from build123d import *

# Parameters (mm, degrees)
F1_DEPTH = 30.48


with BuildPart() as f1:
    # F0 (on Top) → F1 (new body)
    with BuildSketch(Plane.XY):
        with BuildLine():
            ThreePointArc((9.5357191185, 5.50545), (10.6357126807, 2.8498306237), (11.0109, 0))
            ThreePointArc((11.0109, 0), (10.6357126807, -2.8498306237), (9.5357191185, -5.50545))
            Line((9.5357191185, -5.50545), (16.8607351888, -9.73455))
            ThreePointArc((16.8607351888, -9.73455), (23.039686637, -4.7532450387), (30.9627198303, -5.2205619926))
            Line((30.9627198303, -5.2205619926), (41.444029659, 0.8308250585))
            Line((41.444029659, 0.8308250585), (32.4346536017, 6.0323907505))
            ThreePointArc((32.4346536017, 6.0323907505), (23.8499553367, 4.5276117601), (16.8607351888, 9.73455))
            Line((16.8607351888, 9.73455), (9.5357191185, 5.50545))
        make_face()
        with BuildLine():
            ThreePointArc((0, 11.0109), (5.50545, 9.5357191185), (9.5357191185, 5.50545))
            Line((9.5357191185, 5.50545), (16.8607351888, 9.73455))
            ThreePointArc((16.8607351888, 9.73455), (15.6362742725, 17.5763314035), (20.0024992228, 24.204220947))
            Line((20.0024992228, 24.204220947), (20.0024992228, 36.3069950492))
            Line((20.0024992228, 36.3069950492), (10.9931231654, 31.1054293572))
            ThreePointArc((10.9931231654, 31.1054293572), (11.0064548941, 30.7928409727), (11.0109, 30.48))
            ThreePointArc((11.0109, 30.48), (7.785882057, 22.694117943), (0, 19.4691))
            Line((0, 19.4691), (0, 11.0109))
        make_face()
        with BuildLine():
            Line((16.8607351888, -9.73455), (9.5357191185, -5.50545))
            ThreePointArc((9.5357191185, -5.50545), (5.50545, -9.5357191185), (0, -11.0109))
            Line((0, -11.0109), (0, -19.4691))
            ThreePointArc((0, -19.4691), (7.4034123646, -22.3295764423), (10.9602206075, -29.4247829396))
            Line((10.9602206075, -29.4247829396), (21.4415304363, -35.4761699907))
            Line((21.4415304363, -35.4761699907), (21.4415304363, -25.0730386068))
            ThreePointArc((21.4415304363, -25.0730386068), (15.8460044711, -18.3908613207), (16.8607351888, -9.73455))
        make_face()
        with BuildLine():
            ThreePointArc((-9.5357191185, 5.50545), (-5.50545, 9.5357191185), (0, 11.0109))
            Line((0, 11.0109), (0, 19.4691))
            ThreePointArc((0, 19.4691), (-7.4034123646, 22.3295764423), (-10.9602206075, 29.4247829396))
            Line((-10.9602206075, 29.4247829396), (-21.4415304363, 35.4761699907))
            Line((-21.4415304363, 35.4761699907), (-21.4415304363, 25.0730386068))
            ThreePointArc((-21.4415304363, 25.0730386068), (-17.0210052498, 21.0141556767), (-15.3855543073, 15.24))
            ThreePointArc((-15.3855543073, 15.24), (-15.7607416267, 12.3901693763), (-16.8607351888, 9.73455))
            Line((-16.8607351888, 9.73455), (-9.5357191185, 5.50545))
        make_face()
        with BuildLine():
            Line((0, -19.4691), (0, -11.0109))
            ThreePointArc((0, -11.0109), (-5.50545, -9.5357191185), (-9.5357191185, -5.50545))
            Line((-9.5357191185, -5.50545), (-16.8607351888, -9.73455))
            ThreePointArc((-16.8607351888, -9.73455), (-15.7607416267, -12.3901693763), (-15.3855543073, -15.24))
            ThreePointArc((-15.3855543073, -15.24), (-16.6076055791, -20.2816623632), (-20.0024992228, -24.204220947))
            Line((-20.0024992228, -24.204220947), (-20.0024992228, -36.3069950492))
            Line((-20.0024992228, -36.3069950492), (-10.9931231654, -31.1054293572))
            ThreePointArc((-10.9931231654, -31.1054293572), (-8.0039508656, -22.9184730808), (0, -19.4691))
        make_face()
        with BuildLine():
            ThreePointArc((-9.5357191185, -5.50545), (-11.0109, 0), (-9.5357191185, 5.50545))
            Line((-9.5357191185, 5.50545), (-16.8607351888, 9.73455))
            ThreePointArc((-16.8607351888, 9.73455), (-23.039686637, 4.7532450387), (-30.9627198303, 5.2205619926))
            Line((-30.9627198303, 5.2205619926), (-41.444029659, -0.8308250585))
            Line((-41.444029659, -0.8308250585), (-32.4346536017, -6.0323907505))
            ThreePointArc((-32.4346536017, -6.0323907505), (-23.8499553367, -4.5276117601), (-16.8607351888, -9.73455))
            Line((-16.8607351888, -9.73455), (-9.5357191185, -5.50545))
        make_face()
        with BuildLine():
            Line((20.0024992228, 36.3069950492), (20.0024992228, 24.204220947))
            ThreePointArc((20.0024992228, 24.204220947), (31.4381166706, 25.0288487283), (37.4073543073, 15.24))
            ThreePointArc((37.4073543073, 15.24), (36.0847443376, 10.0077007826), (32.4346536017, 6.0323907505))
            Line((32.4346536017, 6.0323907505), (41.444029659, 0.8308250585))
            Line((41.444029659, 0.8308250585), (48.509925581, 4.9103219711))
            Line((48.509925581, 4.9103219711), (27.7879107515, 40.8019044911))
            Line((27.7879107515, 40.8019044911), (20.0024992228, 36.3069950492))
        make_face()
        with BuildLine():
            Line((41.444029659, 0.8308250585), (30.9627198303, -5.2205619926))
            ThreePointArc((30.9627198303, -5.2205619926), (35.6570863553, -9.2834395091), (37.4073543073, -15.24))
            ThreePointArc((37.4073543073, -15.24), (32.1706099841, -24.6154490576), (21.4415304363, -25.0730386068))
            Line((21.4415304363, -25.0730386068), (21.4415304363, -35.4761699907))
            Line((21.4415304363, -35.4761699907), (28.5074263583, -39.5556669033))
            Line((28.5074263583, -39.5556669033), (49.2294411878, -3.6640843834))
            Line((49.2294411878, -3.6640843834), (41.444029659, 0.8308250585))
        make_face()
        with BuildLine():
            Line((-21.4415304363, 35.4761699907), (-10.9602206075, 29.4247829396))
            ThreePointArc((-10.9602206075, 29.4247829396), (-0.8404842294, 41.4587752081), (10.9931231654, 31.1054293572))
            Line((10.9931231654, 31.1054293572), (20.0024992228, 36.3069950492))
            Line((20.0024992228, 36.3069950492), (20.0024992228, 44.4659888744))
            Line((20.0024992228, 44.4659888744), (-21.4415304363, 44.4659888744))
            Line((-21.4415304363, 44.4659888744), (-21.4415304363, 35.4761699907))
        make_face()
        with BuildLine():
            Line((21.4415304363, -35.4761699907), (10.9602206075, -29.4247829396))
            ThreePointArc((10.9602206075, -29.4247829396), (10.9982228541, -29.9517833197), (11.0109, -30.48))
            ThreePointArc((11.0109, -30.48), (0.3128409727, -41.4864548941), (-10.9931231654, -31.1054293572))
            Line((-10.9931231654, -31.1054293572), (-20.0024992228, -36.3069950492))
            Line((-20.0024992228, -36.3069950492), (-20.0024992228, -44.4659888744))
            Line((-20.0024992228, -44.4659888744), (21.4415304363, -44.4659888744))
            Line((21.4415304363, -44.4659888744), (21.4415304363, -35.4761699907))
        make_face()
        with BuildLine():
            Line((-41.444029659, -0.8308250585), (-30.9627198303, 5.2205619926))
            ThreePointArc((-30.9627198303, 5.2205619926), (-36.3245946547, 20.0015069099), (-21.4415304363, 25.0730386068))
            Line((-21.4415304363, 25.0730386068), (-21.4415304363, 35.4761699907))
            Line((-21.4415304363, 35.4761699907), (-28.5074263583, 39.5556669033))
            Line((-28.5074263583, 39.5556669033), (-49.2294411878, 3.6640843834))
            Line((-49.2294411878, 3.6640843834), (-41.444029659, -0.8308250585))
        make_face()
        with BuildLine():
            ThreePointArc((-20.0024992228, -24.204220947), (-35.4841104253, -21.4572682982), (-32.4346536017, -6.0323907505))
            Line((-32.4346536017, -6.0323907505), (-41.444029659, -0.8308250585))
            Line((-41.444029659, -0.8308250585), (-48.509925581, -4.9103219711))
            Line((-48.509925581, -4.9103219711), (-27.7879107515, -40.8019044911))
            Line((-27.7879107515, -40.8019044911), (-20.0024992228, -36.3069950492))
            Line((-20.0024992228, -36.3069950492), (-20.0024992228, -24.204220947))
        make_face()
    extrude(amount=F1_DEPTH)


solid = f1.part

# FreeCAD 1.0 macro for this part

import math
import FreeCAD as App
import Part
import Sketcher

V = App.Vector
Q = App.Units.Quantity


def add_polygon(sketch, points):
    """Adds a closed chain of lines whose ends are joined by coincident constraints."""
    first, n = sketch.GeometryCount, len(points)
    for a, b in zip(points, points[1:] + points[:1]):
        sketch.addGeometry(Part.LineSegment(App.Vector(*a, 0), App.Vector(*b, 0)), False)
    for i in range(n):
        sketch.addConstraint(Sketcher.Constraint("Coincident", first + i, 2, first + (i + 1) % n, 1))

doc = App.newDocument("Part")
params = doc.addObject("Spreadsheet::Sheet", "Params")
for row, (alias, value) in enumerate([
    ("pad1_length", "1.2 in"),
], start=1):
    params.set(f"A{row}", alias)
    params.set(f"B{row}", "=" + value)
    params.setAlias(f"B{row}", alias)

body = doc.addObject("PartDesign::Body", "Body")

# Sketch on XY plane
sketch1 = body.newObject("Sketcher::SketchObject", "Sketch")
sketch1.AttachmentSupport = (doc.getObject("XY_Plane"), [""])
sketch1.MapMode = "FlatFace"
add_polygon(sketch1, [(-20, -36.3), (-20, -44.5), (21.4, -44.5), (21.4, -35.5), (28.5, -39.6), (49.2, -3.7), (41.4, 0.8), (48.5, 4.9), (27.8, 40.8), (20, 36.3), (20, 44.5), (-21.4, 44.5), (-21.4, 35.5), (-28.5, 39.6), (-49.2, 3.7), (-41.4, -0.8), (-48.5, -4.9), (-27.8, -40.8)])  # lines 0-17
sketch1.addGeometry(Part.ArcOfCircle(Part.Circle(V(0, 0, 0), V(0, 0, 1), 11), math.radians(0), math.radians(30)), False)  # 18
sketch1.addGeometry(Part.ArcOfCircle(Part.Circle(V(0, 0, 0), V(0, 0, 1), 11), math.radians(-30), math.radians(0)), False)  # 19
sketch1.addGeometry(Part.ArcOfCircle(Part.Circle(V(0, 0, 0), V(0, 0, 1), 11), math.radians(-90), math.radians(-30)), False)  # 20
sketch1.addGeometry(Part.ArcOfCircle(Part.Circle(V(0, 0, 0), V(0, 0, 1), 11), math.radians(-150), math.radians(-90)), False)  # 21
sketch1.addGeometry(Part.ArcOfCircle(Part.Circle(V(0, 0, 0), V(0, 0, 1), 11), math.radians(150), math.radians(210)), False)  # 22
sketch1.addGeometry(Part.ArcOfCircle(Part.Circle(V(0, 0, 0), V(0, 0, 1), 11), math.radians(90), math.radians(150)), False)  # 23
sketch1.addGeometry(Part.ArcOfCircle(Part.Circle(V(0, 0, 0), V(0, 0, 1), 11), math.radians(30), math.radians(90)), False)  # 24
sketch1.addGeometry(Part.ArcOfCircle(Part.Circle(V(-26.4, -15.2, 0), V(0, 0, 1), 11), math.radians(0), math.radians(30)), False)  # 25
sketch1.addGeometry(Part.ArcOfCircle(Part.Circle(V(-26.4, -15.2, 0), V(0, 0, 1), 11), math.radians(-55), math.radians(0)), False)  # 26
sketch1.addGeometry(Part.ArcOfCircle(Part.Circle(V(-26.4, -15.2, 0), V(0, 0, 1), 11), math.radians(30), math.radians(305)), False)  # 27
sketch1.addGeometry(Part.ArcOfCircle(Part.Circle(V(-26.4, 15.2, 0), V(0, 0, 1), 11), math.radians(0), math.radians(63)), False)  # 28
sketch1.addGeometry(Part.ArcOfCircle(Part.Circle(V(-26.4, 15.2, 0), V(0, 0, 1), 11), math.radians(-30), math.radians(0)), False)  # 29
sketch1.addGeometry(Part.ArcOfCircle(Part.Circle(V(-26.4, 15.2, 0), V(0, 0, 1), 11), math.radians(-115), math.radians(-30)), False)  # 30
sketch1.addGeometry(Part.ArcOfCircle(Part.Circle(V(-26.4, 15.2, 0), V(0, 0, 1), 11), math.radians(63), math.radians(245)), False)  # 31
sketch1.addGeometry(Part.ArcOfCircle(Part.Circle(V(0, -30.5, 0), V(0, 0, 1), 11), math.radians(90), math.radians(183)), False)  # 32
sketch1.addGeometry(Part.ArcOfCircle(Part.Circle(V(0, -30.5, 0), V(0, 0, 1), 11), math.radians(5), math.radians(90)), False)  # 33
sketch1.addGeometry(Part.ArcOfCircle(Part.Circle(V(0, -30.5, 0), V(0, 0, 1), 11), math.radians(0), math.radians(5.5)), False)  # 34
sketch1.addGeometry(Part.ArcOfCircle(Part.Circle(V(0, -30.5, 0), V(0, 0, 1), 11), math.radians(-177), math.radians(0)), False)  # 35
sketch1.addGeometry(Part.ArcOfCircle(Part.Circle(V(0, 30.5, 0), V(0, 0, 1), 11), math.radians(0), math.radians(3.26)), False)  # 36
sketch1.addGeometry(Part.ArcOfCircle(Part.Circle(V(0, 30.5, 0), V(0, 0, 1), 11), math.radians(-90), math.radians(0)), False)  # 37
sketch1.addGeometry(Part.ArcOfCircle(Part.Circle(V(0, 30.5, 0), V(0, 0, 1), 11), math.radians(-175), math.radians(-90)), False)  # 38
sketch1.addGeometry(Part.ArcOfCircle(Part.Circle(V(0, 30.5, 0), V(0, 0, 1), 11), math.radians(3), math.radians(185)), False)  # 39
sketch1.addGeometry(Part.ArcOfCircle(Part.Circle(V(26.4, -15.2, 0), V(0, 0, 1), 11), math.radians(150), math.radians(243)), False)  # 40
sketch1.addGeometry(Part.ArcOfCircle(Part.Circle(V(26.4, -15.2, 0), V(0, 0, 1), 11), math.radians(0), math.radians(150)), False)  # 41
sketch1.addGeometry(Part.ArcOfCircle(Part.Circle(V(26.4, -15.2, 0), V(0, 0, 1), 11), math.radians(-117), math.radians(0)), False)  # 42
sketch1.addGeometry(Part.ArcOfCircle(Part.Circle(V(26.4, 15.2, 0), V(0, 0, 1), 11), math.radians(-150), math.radians(-57)), False)  # 43
sketch1.addGeometry(Part.ArcOfCircle(Part.Circle(V(26.4, 15.2, 0), V(0, 0, 1), 11), math.radians(0), math.radians(210)), False)  # 44
sketch1.addGeometry(Part.ArcOfCircle(Part.Circle(V(26.4, 15.2, 0), V(0, 0, 1), 11), math.radians(-57), math.radians(0)), False)  # 45
sketch1.addConstraint(Sketcher.Constraint("Tangent", 18, 1, 19, 2))
sketch1.addConstraint(Sketcher.Constraint("Tangent", 19, 1, 20, 2))
sketch1.addConstraint(Sketcher.Constraint("Tangent", 20, 1, 21, 2))
sketch1.addConstraint(Sketcher.Constraint("Tangent", 21, 1, 22, 2))
sketch1.addConstraint(Sketcher.Constraint("Tangent", 22, 1, 23, 2))
sketch1.addConstraint(Sketcher.Constraint("Tangent", 23, 1, 24, 2))
sketch1.addConstraint(Sketcher.Constraint("Tangent", 24, 1, 18, 2))
sketch1.addConstraint(Sketcher.Constraint("Tangent", 25, 1, 26, 2))
sketch1.addConstraint(Sketcher.Constraint("Tangent", 26, 1, 27, 2))
sketch1.addConstraint(Sketcher.Constraint("Tangent", 27, 1, 25, 2))
sketch1.addConstraint(Sketcher.Constraint("Tangent", 28, 1, 29, 2))
sketch1.addConstraint(Sketcher.Constraint("Tangent", 29, 1, 30, 2))
sketch1.addConstraint(Sketcher.Constraint("Tangent", 30, 1, 31, 2))
sketch1.addConstraint(Sketcher.Constraint("Tangent", 31, 1, 28, 2))
sketch1.addConstraint(Sketcher.Constraint("Tangent", 32, 1, 33, 2))
sketch1.addConstraint(Sketcher.Constraint("Tangent", 33, 1, 34, 2))
sketch1.addConstraint(Sketcher.Constraint("Tangent", 34, 1, 35, 2))
sketch1.addConstraint(Sketcher.Constraint("Tangent", 35, 1, 32, 2))
sketch1.addConstraint(Sketcher.Constraint("Tangent", 36, 1, 37, 2))
sketch1.addConstraint(Sketcher.Constraint("Tangent", 37, 1, 38, 2))
sketch1.addConstraint(Sketcher.Constraint("Tangent", 38, 1, 39, 2))
sketch1.addConstraint(Sketcher.Constraint("Tangent", 39, 1, 36, 2))
sketch1.addConstraint(Sketcher.Constraint("Tangent", 40, 1, 41, 2))
sketch1.addConstraint(Sketcher.Constraint("Tangent", 41, 1, 42, 2))
sketch1.addConstraint(Sketcher.Constraint("Tangent", 42, 1, 40, 2))
sketch1.addConstraint(Sketcher.Constraint("Tangent", 43, 1, 44, 2))
sketch1.addConstraint(Sketcher.Constraint("Tangent", 44, 1, 45, 2))
sketch1.addConstraint(Sketcher.Constraint("Tangent", 45, 1, 43, 2))
sketch1.addConstraint(Sketcher.Constraint("Vertical", 0))
sketch1.addConstraint(Sketcher.Constraint("Horizontal", 1))
sketch1.addConstraint(Sketcher.Constraint("Vertical", 2))
sketch1.addConstraint(Sketcher.Constraint("Vertical", 9))
sketch1.addConstraint(Sketcher.Constraint("Horizontal", 10))
sketch1.addConstraint(Sketcher.Constraint("Vertical", 11))
sketch1.addConstraint(Sketcher.Constraint("Coincident", 18, 3, -1, 1))
sketch1.addConstraint(Sketcher.Constraint("Coincident", 20, 3, -1, 1))
sketch1.addConstraint(Sketcher.Constraint("Coincident", 22, 3, -1, 1))
sketch1.addConstraint(Sketcher.Constraint("Equal", 24, 25))
sketch1.addConstraint(Sketcher.Constraint("Equal", 27, 28))
sketch1.addConstraint(Sketcher.Constraint("Equal", 28, 29))
sketch1.addConstraint(Sketcher.Constraint("Equal", 31, 32))
sketch1.addConstraint(Sketcher.Constraint("Equal", 32, 33))
sketch1.addConstraint(Sketcher.Constraint("Equal", 35, 36))
sketch1.addConstraint(Sketcher.Constraint("Equal", 36, 37))
sketch1.addConstraint(Sketcher.Constraint("Equal", 39, 40))
sketch1.addConstraint(Sketcher.Constraint("Equal", 42, 43))
sketch1.addConstraint(Sketcher.Constraint("Symmetric", 32, 3, 36, 3, -1, 1))
sketch1.addConstraint(Sketcher.Constraint("Symmetric", 28, 3, 40, 3, -1, 1))
sketch1.addConstraint(Sketcher.Constraint("Symmetric", 25, 3, 43, 3, -1, 1))
sketch1.addConstraint(Sketcher.Constraint("Symmetric", 0, 2, 9, 2, -1, 1))
sketch1.addConstraint(Sketcher.Constraint("Symmetric", 2, 2, 11, 2, -1, 1))
sketch1.addConstraint(Sketcher.Constraint("Symmetric", 3, 2, 12, 2, -1, 1))
sketch1.addConstraint(Sketcher.Constraint("Symmetric", 4, 2, 13, 2, -1, 1))
sketch1.addConstraint(Sketcher.Constraint("Symmetric", 5, 2, 14, 2, -1, 1))
sketch1.addConstraint(Sketcher.Constraint("Symmetric", 6, 2, 15, 2, -1, 1))
sketch1.addConstraint(Sketcher.Constraint("Symmetric", 7, 2, 16, 2, -1, 1))
sketch1.addConstraint(Sketcher.Constraint("Symmetric", 25, 3, 40, 3, -2))
sketch1.addConstraint(Sketcher.Constraint("Symmetric", 34, 1, 36, 1, -1))
sketch1.addConstraint(Sketcher.Constraint("PointOnObject", 18, 1, -1))
sketch1.addConstraint(Sketcher.Constraint("PointOnObject", 20, 1, -2))
sketch1.addConstraint(Sketcher.Constraint("PointOnObject", 23, 1, -2))
sketch1.addConstraint(Sketcher.Constraint("PointOnObject", 32, 1, -2))
sketch1.addConstraint(Sketcher.Constraint("PointOnObject", 37, 1, -2))
sketch1.addConstraint(Sketcher.Constraint("Perpendicular", 3, 4))
sketch1.addConstraint(Sketcher.Constraint("Perpendicular", 4, 5))
sketch1.addConstraint(Sketcher.Constraint("Perpendicular", 6, 7))
sketch1.addConstraint(Sketcher.Constraint("Perpendicular", 7, 8))
sketch1.addConstraint(Sketcher.Constraint("Perpendicular", 16, 17))
sketch1.addConstraint(Sketcher.Constraint("Horizontal", 19, 1, 21, 1))
sketch1.addConstraint(Sketcher.Constraint("Horizontal", 22, 1, 24, 1))
sketch1.addConstraint(Sketcher.Constraint("Horizontal", 42, 3, 25, 1))
sketch1.addConstraint(Sketcher.Constraint("Horizontal", 45, 3, 28, 1))
sketch1.addConstraint(Sketcher.Constraint("Horizontal", 35, 3, 34, 1))
sketch1.addConstraint(Sketcher.Constraint("Horizontal", 27, 1, 40, 1))
sketch1.addConstraint(Sketcher.Constraint("Horizontal", 25, 1, 41, 1))
sketch1.addConstraint(Sketcher.Constraint("Horizontal", 29, 1, 43, 1))
sketch1.addConstraint(Sketcher.Constraint("Horizontal", 28, 1, 44, 1))
sketch1.addConstraint(Sketcher.Constraint("Vertical", 21, 1, 22, 1))
sketch1.addConstraint(Sketcher.Constraint("Vertical", 17, 2, 26, 1))
sketch1.addConstraint(Sketcher.Constraint("Vertical", 27, 1, 29, 1))
sketch1.addConstraint(Sketcher.Constraint("Vertical", 11, 2, 31, 1))
sketch1.addConstraint(Sketcher.Constraint("Vertical", 2, 2, 42, 1))
sketch1.addConstraint(Sketcher.Constraint("Equal", 3, 6))
sketch1.addConstraint(Sketcher.Constraint("Equal", 4, 7))
sketch1.addConstraint(Sketcher.Constraint("Equal", 5, 8))
sketch1.addConstraint(Sketcher.Constraint("Angle", 3, Q("-30 deg")))
sketch1.addConstraint(Sketcher.Constraint("Angle", 6, Q("30 deg")))
sketch1.addConstraint(Sketcher.Constraint("DistanceY", 25, 3, -1, 1, Q("0.6 in")))
sketch1.addConstraint(Sketcher.Constraint("DistanceY", 32, 3, -1, 1, Q("1.2 in")))
sketch1.addConstraint(Sketcher.Constraint("Radius", 18, Q("0.4335 in")))
sketch1.addConstraint(Sketcher.Constraint("DistanceX", 0, 2, -1, 1, Q("0.7875 in")))
sketch1.addConstraint(Sketcher.Constraint("DistanceX", 35, 1, -1, 1, Q("0.4328001 in")))
sketch1.addConstraint(Sketcher.Constraint("DistanceX", -1, 1, 39, 1, Q("0.4328001 in")))
sketch1.addConstraint(Sketcher.Constraint("DistanceX", 1, 1, 1, 2, 41.44403))
sketch1.addConstraint(Sketcher.Constraint("DistanceY", 2, 1, 2, 2, 8.989819))
sketch1.addConstraint(Sketcher.Constraint("Distance", 4, 41.44403))
sketch1.addConstraint(Sketcher.Constraint("Distance", 5, 8.989819))
sketch1.addConstraint(Sketcher.Constraint("DistanceY", 0, 2, 0, 1, 8.158994))
sketch1.addConstraint(Sketcher.Constraint("DistanceX", -1, 1, 19, 1, 9.535719))
sketch1.addConstraint(Sketcher.Constraint("DistanceY", 26, 1, -1, 1, 24.204221))
sketch1.addConstraint(Sketcher.Constraint("DistanceY", 27, 1, -1, 1, 9.73455))
sketch1.addConstraint(Sketcher.Constraint("DistanceX", 30, 1, -1, 1, 30.96272))
sketch1.addConstraint(Sketcher.Constraint("DistanceX", -1, 1, 33, 1, 10.960221))
sketch1.addConstraint(Sketcher.Constraint("DistanceX", 38, 1, -1, 1, 10.960221))
sketch1.addConstraint(Sketcher.Constraint("DistanceY", -1, 1, 45, 1, 6.032391))
pad1 = body.newObject("PartDesign::Pad", "Pad")
pad1.Profile = sketch1
pad1.setExpression("Length", "Params.pad1_length")

doc.recompute()
